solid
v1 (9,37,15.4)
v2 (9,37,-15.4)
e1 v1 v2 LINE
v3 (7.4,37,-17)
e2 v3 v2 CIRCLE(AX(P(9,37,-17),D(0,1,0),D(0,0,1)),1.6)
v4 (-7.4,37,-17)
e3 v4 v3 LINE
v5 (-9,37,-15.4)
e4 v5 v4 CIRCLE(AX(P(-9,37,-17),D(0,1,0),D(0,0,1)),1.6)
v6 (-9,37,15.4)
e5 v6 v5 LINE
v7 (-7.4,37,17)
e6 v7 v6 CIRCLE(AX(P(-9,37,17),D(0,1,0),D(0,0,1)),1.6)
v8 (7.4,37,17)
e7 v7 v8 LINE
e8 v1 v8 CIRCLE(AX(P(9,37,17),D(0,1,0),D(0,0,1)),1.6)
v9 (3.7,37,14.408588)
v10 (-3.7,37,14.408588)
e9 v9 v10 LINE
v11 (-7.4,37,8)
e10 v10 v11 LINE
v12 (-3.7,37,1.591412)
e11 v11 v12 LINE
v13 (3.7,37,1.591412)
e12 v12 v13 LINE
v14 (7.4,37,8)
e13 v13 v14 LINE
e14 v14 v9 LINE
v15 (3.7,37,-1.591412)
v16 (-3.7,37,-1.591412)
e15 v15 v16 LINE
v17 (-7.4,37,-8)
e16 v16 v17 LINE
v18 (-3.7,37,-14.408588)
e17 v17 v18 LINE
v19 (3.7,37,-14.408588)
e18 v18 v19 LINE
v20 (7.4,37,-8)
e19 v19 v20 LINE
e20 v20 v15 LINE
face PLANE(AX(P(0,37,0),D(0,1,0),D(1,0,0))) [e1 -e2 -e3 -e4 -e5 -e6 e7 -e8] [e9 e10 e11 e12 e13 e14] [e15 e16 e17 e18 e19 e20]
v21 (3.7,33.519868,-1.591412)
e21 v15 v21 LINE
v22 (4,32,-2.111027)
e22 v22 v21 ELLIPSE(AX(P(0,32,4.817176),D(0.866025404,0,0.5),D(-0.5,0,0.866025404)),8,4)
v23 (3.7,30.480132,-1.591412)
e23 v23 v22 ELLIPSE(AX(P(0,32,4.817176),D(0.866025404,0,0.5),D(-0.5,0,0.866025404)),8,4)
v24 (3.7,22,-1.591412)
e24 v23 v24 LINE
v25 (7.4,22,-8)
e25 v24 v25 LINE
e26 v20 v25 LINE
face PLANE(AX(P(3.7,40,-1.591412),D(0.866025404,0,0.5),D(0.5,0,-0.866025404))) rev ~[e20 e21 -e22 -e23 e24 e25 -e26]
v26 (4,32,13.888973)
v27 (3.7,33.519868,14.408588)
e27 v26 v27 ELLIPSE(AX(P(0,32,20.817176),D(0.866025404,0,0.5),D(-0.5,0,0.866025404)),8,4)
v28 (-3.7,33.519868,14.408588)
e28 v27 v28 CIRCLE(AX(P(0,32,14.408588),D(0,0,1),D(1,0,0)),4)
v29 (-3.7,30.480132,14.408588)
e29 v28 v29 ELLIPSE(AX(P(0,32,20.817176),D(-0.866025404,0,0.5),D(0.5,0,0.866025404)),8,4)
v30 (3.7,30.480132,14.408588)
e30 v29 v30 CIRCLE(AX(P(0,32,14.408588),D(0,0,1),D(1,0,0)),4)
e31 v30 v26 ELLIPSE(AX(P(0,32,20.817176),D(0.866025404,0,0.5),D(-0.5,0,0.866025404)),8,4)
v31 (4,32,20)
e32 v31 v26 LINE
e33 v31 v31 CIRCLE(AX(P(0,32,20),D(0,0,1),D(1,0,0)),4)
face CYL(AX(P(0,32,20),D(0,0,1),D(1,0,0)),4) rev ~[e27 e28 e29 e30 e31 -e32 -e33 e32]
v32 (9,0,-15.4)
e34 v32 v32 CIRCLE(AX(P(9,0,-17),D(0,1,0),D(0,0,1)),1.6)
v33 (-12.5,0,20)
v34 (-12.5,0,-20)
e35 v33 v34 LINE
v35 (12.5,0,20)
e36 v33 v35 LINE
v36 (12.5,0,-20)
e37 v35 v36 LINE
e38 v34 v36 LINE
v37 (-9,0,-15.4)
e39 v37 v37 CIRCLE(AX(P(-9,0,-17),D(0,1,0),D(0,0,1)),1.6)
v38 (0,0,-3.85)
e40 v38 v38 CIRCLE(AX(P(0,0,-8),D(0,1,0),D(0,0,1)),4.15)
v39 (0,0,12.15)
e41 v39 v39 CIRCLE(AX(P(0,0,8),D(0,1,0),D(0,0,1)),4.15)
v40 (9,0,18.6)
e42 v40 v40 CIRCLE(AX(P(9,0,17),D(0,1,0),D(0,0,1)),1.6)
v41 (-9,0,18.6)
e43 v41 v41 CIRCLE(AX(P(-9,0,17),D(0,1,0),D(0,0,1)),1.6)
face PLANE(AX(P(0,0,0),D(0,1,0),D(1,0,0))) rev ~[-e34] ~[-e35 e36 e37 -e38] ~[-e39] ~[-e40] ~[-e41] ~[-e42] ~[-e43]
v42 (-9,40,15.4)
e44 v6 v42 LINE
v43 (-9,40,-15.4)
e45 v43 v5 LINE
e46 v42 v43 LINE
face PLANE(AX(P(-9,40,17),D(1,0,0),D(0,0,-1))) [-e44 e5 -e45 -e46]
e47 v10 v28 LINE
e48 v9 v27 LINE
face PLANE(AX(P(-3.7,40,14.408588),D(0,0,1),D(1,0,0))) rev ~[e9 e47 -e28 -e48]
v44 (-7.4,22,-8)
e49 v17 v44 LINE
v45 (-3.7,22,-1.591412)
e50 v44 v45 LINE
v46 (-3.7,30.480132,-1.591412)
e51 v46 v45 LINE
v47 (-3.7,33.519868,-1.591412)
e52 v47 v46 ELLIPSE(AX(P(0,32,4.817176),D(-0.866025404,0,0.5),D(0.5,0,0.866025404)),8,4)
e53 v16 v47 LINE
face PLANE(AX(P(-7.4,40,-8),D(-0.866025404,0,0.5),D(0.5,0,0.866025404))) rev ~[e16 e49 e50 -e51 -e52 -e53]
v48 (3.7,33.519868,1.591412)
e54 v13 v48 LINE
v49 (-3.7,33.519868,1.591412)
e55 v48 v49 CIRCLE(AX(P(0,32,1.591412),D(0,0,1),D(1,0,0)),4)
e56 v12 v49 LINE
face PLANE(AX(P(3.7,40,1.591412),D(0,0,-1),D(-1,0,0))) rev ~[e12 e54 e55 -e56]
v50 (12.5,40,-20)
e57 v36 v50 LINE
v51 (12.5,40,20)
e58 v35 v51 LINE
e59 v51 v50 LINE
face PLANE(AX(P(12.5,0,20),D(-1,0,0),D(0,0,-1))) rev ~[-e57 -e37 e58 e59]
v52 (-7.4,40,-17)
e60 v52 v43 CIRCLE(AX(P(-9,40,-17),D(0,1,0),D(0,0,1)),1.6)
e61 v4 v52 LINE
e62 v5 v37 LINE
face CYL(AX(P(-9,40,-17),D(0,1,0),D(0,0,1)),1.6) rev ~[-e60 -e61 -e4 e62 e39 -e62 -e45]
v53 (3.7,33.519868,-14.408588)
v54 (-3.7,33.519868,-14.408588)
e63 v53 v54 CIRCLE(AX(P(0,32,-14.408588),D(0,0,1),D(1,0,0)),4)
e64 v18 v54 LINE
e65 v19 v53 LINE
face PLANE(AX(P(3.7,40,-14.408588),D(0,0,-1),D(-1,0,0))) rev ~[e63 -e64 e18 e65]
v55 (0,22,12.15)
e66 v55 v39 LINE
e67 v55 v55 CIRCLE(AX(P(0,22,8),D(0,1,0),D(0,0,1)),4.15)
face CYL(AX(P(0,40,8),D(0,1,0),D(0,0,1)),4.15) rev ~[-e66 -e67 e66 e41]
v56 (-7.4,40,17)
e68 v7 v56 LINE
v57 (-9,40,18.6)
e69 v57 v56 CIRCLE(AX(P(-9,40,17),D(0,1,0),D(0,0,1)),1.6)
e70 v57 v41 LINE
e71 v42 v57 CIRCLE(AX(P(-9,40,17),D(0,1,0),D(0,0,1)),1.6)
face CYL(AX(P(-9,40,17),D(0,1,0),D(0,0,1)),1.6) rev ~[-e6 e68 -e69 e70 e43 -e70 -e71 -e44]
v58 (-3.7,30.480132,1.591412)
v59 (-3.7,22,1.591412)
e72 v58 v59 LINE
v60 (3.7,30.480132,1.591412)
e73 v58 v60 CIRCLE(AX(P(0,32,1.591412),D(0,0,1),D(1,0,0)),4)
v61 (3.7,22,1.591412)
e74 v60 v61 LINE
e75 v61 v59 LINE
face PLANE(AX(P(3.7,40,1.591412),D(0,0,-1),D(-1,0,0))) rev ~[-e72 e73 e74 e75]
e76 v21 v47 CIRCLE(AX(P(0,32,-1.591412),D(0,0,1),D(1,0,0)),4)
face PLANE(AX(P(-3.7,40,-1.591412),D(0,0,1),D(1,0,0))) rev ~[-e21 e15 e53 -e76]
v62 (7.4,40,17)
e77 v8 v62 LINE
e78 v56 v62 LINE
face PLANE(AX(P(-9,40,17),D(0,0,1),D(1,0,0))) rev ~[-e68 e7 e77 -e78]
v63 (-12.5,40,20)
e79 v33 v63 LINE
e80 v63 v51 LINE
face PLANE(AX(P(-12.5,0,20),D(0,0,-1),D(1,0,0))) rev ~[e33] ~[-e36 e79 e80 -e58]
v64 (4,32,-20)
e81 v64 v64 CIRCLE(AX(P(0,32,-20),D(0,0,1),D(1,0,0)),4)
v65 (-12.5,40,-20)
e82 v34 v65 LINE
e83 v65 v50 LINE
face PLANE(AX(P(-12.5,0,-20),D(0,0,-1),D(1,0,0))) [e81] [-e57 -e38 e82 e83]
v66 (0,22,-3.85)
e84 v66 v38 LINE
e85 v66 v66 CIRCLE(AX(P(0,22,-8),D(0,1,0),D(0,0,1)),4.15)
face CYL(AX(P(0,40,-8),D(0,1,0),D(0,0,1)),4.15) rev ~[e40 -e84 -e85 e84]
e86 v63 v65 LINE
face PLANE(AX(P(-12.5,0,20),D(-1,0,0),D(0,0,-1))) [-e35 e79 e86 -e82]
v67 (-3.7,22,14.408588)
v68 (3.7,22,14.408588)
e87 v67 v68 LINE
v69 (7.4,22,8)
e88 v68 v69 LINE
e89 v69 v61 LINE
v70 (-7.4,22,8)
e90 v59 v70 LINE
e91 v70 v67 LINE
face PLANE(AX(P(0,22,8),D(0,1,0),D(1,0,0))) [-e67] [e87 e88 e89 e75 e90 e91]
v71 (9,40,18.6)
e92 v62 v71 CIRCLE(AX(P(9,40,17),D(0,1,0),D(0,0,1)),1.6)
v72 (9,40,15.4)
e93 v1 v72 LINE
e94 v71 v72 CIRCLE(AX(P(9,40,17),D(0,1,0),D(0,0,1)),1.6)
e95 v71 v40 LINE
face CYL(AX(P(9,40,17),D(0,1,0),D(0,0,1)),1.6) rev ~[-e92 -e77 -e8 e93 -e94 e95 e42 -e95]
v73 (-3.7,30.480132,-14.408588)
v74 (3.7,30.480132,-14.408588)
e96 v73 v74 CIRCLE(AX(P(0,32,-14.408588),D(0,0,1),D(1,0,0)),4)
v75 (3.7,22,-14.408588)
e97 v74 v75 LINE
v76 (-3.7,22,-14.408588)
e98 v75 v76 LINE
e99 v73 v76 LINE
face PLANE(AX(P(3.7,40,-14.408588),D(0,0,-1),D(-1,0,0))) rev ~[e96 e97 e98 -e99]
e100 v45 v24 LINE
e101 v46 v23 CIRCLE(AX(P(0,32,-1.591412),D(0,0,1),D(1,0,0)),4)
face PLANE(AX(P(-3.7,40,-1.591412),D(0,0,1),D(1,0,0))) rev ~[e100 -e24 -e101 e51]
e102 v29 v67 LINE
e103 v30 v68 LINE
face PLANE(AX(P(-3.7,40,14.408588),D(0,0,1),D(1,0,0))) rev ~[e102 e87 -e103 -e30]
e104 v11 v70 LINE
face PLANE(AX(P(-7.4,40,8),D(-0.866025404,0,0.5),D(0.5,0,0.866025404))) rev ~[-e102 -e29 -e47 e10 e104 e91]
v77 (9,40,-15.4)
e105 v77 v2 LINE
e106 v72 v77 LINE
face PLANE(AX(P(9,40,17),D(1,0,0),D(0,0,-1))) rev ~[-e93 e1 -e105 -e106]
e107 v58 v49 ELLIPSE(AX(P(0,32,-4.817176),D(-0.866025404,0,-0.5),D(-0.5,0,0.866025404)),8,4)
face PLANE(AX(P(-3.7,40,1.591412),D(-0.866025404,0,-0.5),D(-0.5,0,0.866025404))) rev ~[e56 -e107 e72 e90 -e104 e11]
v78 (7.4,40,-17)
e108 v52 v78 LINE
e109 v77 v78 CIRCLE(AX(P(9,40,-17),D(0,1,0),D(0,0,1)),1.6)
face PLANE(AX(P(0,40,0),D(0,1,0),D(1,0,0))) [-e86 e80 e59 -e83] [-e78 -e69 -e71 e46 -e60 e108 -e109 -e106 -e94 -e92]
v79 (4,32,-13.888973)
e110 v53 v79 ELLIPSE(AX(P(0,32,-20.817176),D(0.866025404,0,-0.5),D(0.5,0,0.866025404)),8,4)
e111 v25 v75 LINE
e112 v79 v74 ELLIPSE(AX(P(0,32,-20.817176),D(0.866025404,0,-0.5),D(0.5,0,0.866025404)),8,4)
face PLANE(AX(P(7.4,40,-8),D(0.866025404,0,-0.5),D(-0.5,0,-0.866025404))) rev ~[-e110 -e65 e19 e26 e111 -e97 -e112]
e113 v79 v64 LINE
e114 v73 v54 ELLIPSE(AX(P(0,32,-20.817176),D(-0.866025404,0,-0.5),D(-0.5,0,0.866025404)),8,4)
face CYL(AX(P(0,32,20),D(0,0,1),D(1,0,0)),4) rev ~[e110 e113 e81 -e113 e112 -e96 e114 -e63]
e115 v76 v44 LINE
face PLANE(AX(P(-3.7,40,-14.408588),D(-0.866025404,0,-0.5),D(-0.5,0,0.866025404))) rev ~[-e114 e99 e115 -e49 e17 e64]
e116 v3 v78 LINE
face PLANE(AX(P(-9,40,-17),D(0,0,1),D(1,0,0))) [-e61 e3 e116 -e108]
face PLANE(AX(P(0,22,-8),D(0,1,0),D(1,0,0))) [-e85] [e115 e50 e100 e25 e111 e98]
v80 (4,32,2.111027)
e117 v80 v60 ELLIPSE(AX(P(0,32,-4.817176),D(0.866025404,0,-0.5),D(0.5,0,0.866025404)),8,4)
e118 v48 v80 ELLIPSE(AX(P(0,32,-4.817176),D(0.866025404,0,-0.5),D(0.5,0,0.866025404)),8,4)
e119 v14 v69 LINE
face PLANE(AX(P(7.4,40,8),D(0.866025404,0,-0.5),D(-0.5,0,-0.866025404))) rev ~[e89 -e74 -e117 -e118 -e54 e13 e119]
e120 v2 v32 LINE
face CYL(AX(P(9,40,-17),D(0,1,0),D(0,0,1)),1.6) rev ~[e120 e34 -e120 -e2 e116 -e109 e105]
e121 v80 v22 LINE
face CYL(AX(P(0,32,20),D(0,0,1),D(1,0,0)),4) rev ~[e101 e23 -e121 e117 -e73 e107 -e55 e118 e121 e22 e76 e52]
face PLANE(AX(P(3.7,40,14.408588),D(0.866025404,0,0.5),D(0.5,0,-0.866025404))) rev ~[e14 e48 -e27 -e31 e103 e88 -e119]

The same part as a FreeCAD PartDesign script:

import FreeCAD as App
import Part
import Sketcher

V = App.Vector
Q = App.Units.Quantity

doc = App.newDocument("Part")
body = doc.addObject("PartDesign::Body", "Body")

sketch1 = body.newObject("Sketcher::SketchObject", "Sketch")
sketch1.AttachmentSupport = (doc.getObject("XZ_Plane"), [""])
sketch1.MapMode = "FlatFace"
sketch1.addGeometry([
    Part.LineSegment(V(-12, -20, 0), V(-12, 20, 0)),
    Part.LineSegment(V(-12, 20, 0), V(12, 20, 0)),
    Part.LineSegment(V(12, 20, 0), V(12, -20, 0)),
    Part.LineSegment(V(12, -20, 0), V(-12, -20, 0)),
], False)
sketch1.addConstraint([
    Sketcher.Constraint("Coincident", 0, 2, 1, 1),
    Sketcher.Constraint("Coincident", 1, 2, 2, 1),
    Sketcher.Constraint("Coincident", 2, 2, 3, 1),
    Sketcher.Constraint("Coincident", 3, 2, 0, 1),
    Sketcher.Constraint("Vertical", 0),
    Sketcher.Constraint("Horizontal", 1),
    Sketcher.Constraint("Vertical", 2),
    Sketcher.Constraint("Horizontal", 3),
    Sketcher.Constraint("Symmetric", 0, 2, 2, 2, -1, 1),
    Sketcher.Constraint("DistanceX", 1, 1, 1, 2, Q("25 mm")),
    Sketcher.Constraint("DistanceY", 0, 1, 0, 2, Q("40 mm")),
])
pad1 = body.newObject("PartDesign::Pad", "Pad")
pad1.Profile = sketch1
pad1.Length = 40
pad1.Reversed = True

sketch2 = body.newObject("Sketcher::SketchObject", "Sketch001")
sketch2.AttachmentSupport = (doc.getObject("XY_Plane"), [""])
sketch2.MapMode = "FlatFace"
sketch2.AttachmentOffset = App.Placement(V(0, 0, 20), App.Rotation())
sketch2.addGeometry(Part.Circle(V(0, 32, 0), V(0, 0, 1), 4), False)
sketch2.addConstraint([
    Sketcher.Constraint("PointOnObject", 0, 3, -2),
    Sketcher.Constraint("Diameter", 0, Q("8 mm")),
    Sketcher.Constraint("DistanceY", -1, 1, 0, 3, Q("32 mm")),
])
pocket1 = body.newObject("PartDesign::Pocket", "Pocket")
pocket1.Profile = sketch2
pocket1.Type = "ThroughAll"

sketch3 = body.newObject("Sketcher::SketchObject", "Sketch002")
sketch3.AttachmentSupport = (doc.getObject("XZ_Plane"), [""])
sketch3.MapMode = "FlatFace"
sketch3.AttachmentOffset = App.Placement(V(0, 0, -40), App.Rotation())
sketch3.addGeometry([
    Part.Circle(V(0, 8, 0), V(0, 0, 1), 4.2),
    Part.Circle(V(0, -8, 0), V(0, 0, 1), 4.2),
], False)
sketch3.addConstraint([
    Sketcher.Constraint("Equal", 0, 1),
    Sketcher.Constraint("Symmetric", 0, 3, 1, 3, -1, 1),
    Sketcher.Constraint("PointOnObject", 0, 3, -2),
    Sketcher.Constraint("Diameter", 0, Q("8.3 mm")),
    Sketcher.Constraint("DistanceY", -1, 1, 0, 3, Q("8 mm")),
])
pocket2 = body.newObject("PartDesign::Pocket", "Pocket001")
pocket2.Profile = sketch3
pocket2.Type = "ThroughAll"
pocket2.Reversed = True

sketch4 = body.newObject("Sketcher::SketchObject", "Sketch003")
sketch4.AttachmentSupport = (doc.getObject("XZ_Plane"), [""])
sketch4.MapMode = "FlatFace"
sketch4.AttachmentOffset = App.Placement(V(0, 0, -40), App.Rotation())
sketch4.addGeometry([
    Part.LineSegment(V(-4, 14, 0), V(4, 14, 0)),
    Part.LineSegment(V(4, 14, 0), V(7, 8, 0)),
    Part.LineSegment(V(7, 8, 0), V(4, 2, 0)),
    Part.LineSegment(V(4, 2, 0), V(-4, 2, 0)),
    Part.LineSegment(V(-4, 2, 0), V(-7, 8, 0)),
    Part.LineSegment(V(-7, 8, 0), V(-4, 14, 0)),
    Part.LineSegment(V(-4, -14, 0), V(-7, -8, 0)),
    Part.LineSegment(V(-7, -8, 0), V(-4, -2, 0)),
    Part.LineSegment(V(-4, -2, 0), V(4, -2, 0)),
    Part.LineSegment(V(4, -2, 0), V(7, -8, 0)),
    Part.LineSegment(V(7, -8, 0), V(4, -14, 0)),
    Part.LineSegment(V(4, -14, 0), V(-4, -14, 0)),
], False)
sketch4.addConstraint([
    Sketcher.Constraint("Coincident", 0, 2, 1, 1),
    Sketcher.Constraint("Coincident", 1, 2, 2, 1),
    Sketcher.Constraint("Coincident", 2, 2, 3, 1),
    Sketcher.Constraint("Coincident", 3, 2, 4, 1),
    Sketcher.Constraint("Coincident", 4, 2, 5, 1),
    Sketcher.Constraint("Coincident", 5, 2, 0, 1),
    Sketcher.Constraint("Coincident", 6, 2, 7, 1),
    Sketcher.Constraint("Coincident", 7, 2, 8, 1),
    Sketcher.Constraint("Coincident", 8, 2, 9, 1),
    Sketcher.Constraint("Coincident", 9, 2, 10, 1),
    Sketcher.Constraint("Coincident", 10, 2, 11, 1),
    Sketcher.Constraint("Coincident", 11, 2, 6, 1),
    Sketcher.Constraint("Horizontal", 0),
    Sketcher.Constraint("Horizontal", 3),
    Sketcher.Constraint("Horizontal", 8),
    Sketcher.Constraint("Horizontal", 11),
    Sketcher.Constraint("Symmetric", 1, 2, 6, 2, -1, 1),
    Sketcher.Constraint("Symmetric", 2, 2, 7, 2, -1, 1),
    Sketcher.Constraint("Symmetric", 4, 2, 9, 2, -1, 1),
    Sketcher.Constraint("Symmetric", 5, 2, 10, 2, -1, 1),
    Sketcher.Constraint("Symmetric", 1, 2, 4, 2, -2),
    Sketcher.Constraint("Parallel", 1, 4),
    Sketcher.Constraint("Parallel", 2, 5),
    Sketcher.Constraint("Parallel", 4, 6),
    Sketcher.Constraint("Parallel", 6, 9),
    Sketcher.Constraint("Vertical", 0, 2, 2, 2),
    Sketcher.Constraint("Vertical", 3, 2, 5, 2),
    Sketcher.Constraint("Angle", 1, Q("-60 deg")),
    Sketcher.Constraint("DistanceX", 0, 1, 0, 2, Q("7.4 mm")),
    Sketcher.Constraint("DistanceY", -1, 1, 1, 2, Q("8 mm")),
    Sketcher.Constraint("Distance", 1, Q("7.4 mm")),
])
pocket3 = body.newObject("PartDesign::Pocket", "Pocket002")
pocket3.Profile = sketch4
pocket3.Length = 18
pocket3.Reversed = True

sketch5 = body.newObject("Sketcher::SketchObject", "Sketch004")
sketch5.AttachmentSupport = (doc.getObject("XZ_Plane"), [""])
sketch5.MapMode = "FlatFace"
sketch5.AttachmentOffset = App.Placement(V(0, 0, -40), App.Rotation())
sketch5.addGeometry([
    Part.Circle(V(9, 17, 0), V(0, 0, 1), 1.6),
    Part.Circle(V(-9, 17, 0), V(0, 0, 1), 1.6),
    Part.Circle(V(-9, -17, 0), V(0, 0, 1), 1.6),
    Part.Circle(V(9, -17, 0), V(0, 0, 1), 1.6),
], False)
sketch5.addConstraint([
    Sketcher.Constraint("Equal", 0, 1),
    Sketcher.Constraint("Equal", 1, 2),
    Sketcher.Constraint("Equal", 2, 3),
    Sketcher.Constraint("Symmetric", 0, 3, 2, 3, -1, 1),
    Sketcher.Constraint("Symmetric", 1, 3, 3, 3, -1, 1),
    Sketcher.Constraint("Symmetric", 0, 3, 1, 3, -2),
    Sketcher.Constraint("Diameter", 0, Q("3.2 mm")),
    Sketcher.Constraint("DistanceX", -1, 1, 0, 3, Q("9 mm")),
    Sketcher.Constraint("DistanceY", -1, 1, 0, 3, Q("17 mm")),
])
pocket4 = body.newObject("PartDesign::Pocket", "Pocket003")
pocket4.Profile = sketch5
pocket4.Type = "ThroughAll"
pocket4.Reversed = True

sketch6 = body.newObject("Sketcher::SketchObject", "Sketch005")
sketch6.AttachmentSupport = (doc.getObject("XZ_Plane"), [""])
sketch6.MapMode = "FlatFace"
sketch6.AttachmentOffset = App.Placement(V(0, 0, -40), App.Rotation())
sketch6.addGeometry([
    Part.LineSegment(V(-9, -17, 0), V(-9, 17, 0)),
    Part.LineSegment(V(-9, 17, 0), V(9, 17, 0)),
    Part.LineSegment(V(9, 17, 0), V(9, -17, 0)),
    Part.LineSegment(V(9, -17, 0), V(-9, -17, 0)),
], False)
sketch6.addConstraint([
    Sketcher.Constraint("Coincident", 0, 2, 1, 1),
    Sketcher.Constraint("Coincident", 1, 2, 2, 1),
    Sketcher.Constraint("Coincident", 2, 2, 3, 1),
    Sketcher.Constraint("Coincident", 3, 2, 0, 1),
    Sketcher.Constraint("Vertical", 0),
    Sketcher.Constraint("Horizontal", 1),
    Sketcher.Constraint("Vertical", 2),
    Sketcher.Constraint("Horizontal", 3),
    Sketcher.Constraint("Symmetric", 0, 2, 2, 2, -1, 1),
    Sketcher.Constraint("DistanceX", 1, 1, 1, 2, Q("18 mm")),
    Sketcher.Constraint("DistanceY", 0, 1, 0, 2, Q("34 mm")),
])
pocket5 = body.newObject("PartDesign::Pocket", "Pocket004")
pocket5.Profile = sketch6
pocket5.Length = 3
pocket5.Reversed = True

doc.recompute()
